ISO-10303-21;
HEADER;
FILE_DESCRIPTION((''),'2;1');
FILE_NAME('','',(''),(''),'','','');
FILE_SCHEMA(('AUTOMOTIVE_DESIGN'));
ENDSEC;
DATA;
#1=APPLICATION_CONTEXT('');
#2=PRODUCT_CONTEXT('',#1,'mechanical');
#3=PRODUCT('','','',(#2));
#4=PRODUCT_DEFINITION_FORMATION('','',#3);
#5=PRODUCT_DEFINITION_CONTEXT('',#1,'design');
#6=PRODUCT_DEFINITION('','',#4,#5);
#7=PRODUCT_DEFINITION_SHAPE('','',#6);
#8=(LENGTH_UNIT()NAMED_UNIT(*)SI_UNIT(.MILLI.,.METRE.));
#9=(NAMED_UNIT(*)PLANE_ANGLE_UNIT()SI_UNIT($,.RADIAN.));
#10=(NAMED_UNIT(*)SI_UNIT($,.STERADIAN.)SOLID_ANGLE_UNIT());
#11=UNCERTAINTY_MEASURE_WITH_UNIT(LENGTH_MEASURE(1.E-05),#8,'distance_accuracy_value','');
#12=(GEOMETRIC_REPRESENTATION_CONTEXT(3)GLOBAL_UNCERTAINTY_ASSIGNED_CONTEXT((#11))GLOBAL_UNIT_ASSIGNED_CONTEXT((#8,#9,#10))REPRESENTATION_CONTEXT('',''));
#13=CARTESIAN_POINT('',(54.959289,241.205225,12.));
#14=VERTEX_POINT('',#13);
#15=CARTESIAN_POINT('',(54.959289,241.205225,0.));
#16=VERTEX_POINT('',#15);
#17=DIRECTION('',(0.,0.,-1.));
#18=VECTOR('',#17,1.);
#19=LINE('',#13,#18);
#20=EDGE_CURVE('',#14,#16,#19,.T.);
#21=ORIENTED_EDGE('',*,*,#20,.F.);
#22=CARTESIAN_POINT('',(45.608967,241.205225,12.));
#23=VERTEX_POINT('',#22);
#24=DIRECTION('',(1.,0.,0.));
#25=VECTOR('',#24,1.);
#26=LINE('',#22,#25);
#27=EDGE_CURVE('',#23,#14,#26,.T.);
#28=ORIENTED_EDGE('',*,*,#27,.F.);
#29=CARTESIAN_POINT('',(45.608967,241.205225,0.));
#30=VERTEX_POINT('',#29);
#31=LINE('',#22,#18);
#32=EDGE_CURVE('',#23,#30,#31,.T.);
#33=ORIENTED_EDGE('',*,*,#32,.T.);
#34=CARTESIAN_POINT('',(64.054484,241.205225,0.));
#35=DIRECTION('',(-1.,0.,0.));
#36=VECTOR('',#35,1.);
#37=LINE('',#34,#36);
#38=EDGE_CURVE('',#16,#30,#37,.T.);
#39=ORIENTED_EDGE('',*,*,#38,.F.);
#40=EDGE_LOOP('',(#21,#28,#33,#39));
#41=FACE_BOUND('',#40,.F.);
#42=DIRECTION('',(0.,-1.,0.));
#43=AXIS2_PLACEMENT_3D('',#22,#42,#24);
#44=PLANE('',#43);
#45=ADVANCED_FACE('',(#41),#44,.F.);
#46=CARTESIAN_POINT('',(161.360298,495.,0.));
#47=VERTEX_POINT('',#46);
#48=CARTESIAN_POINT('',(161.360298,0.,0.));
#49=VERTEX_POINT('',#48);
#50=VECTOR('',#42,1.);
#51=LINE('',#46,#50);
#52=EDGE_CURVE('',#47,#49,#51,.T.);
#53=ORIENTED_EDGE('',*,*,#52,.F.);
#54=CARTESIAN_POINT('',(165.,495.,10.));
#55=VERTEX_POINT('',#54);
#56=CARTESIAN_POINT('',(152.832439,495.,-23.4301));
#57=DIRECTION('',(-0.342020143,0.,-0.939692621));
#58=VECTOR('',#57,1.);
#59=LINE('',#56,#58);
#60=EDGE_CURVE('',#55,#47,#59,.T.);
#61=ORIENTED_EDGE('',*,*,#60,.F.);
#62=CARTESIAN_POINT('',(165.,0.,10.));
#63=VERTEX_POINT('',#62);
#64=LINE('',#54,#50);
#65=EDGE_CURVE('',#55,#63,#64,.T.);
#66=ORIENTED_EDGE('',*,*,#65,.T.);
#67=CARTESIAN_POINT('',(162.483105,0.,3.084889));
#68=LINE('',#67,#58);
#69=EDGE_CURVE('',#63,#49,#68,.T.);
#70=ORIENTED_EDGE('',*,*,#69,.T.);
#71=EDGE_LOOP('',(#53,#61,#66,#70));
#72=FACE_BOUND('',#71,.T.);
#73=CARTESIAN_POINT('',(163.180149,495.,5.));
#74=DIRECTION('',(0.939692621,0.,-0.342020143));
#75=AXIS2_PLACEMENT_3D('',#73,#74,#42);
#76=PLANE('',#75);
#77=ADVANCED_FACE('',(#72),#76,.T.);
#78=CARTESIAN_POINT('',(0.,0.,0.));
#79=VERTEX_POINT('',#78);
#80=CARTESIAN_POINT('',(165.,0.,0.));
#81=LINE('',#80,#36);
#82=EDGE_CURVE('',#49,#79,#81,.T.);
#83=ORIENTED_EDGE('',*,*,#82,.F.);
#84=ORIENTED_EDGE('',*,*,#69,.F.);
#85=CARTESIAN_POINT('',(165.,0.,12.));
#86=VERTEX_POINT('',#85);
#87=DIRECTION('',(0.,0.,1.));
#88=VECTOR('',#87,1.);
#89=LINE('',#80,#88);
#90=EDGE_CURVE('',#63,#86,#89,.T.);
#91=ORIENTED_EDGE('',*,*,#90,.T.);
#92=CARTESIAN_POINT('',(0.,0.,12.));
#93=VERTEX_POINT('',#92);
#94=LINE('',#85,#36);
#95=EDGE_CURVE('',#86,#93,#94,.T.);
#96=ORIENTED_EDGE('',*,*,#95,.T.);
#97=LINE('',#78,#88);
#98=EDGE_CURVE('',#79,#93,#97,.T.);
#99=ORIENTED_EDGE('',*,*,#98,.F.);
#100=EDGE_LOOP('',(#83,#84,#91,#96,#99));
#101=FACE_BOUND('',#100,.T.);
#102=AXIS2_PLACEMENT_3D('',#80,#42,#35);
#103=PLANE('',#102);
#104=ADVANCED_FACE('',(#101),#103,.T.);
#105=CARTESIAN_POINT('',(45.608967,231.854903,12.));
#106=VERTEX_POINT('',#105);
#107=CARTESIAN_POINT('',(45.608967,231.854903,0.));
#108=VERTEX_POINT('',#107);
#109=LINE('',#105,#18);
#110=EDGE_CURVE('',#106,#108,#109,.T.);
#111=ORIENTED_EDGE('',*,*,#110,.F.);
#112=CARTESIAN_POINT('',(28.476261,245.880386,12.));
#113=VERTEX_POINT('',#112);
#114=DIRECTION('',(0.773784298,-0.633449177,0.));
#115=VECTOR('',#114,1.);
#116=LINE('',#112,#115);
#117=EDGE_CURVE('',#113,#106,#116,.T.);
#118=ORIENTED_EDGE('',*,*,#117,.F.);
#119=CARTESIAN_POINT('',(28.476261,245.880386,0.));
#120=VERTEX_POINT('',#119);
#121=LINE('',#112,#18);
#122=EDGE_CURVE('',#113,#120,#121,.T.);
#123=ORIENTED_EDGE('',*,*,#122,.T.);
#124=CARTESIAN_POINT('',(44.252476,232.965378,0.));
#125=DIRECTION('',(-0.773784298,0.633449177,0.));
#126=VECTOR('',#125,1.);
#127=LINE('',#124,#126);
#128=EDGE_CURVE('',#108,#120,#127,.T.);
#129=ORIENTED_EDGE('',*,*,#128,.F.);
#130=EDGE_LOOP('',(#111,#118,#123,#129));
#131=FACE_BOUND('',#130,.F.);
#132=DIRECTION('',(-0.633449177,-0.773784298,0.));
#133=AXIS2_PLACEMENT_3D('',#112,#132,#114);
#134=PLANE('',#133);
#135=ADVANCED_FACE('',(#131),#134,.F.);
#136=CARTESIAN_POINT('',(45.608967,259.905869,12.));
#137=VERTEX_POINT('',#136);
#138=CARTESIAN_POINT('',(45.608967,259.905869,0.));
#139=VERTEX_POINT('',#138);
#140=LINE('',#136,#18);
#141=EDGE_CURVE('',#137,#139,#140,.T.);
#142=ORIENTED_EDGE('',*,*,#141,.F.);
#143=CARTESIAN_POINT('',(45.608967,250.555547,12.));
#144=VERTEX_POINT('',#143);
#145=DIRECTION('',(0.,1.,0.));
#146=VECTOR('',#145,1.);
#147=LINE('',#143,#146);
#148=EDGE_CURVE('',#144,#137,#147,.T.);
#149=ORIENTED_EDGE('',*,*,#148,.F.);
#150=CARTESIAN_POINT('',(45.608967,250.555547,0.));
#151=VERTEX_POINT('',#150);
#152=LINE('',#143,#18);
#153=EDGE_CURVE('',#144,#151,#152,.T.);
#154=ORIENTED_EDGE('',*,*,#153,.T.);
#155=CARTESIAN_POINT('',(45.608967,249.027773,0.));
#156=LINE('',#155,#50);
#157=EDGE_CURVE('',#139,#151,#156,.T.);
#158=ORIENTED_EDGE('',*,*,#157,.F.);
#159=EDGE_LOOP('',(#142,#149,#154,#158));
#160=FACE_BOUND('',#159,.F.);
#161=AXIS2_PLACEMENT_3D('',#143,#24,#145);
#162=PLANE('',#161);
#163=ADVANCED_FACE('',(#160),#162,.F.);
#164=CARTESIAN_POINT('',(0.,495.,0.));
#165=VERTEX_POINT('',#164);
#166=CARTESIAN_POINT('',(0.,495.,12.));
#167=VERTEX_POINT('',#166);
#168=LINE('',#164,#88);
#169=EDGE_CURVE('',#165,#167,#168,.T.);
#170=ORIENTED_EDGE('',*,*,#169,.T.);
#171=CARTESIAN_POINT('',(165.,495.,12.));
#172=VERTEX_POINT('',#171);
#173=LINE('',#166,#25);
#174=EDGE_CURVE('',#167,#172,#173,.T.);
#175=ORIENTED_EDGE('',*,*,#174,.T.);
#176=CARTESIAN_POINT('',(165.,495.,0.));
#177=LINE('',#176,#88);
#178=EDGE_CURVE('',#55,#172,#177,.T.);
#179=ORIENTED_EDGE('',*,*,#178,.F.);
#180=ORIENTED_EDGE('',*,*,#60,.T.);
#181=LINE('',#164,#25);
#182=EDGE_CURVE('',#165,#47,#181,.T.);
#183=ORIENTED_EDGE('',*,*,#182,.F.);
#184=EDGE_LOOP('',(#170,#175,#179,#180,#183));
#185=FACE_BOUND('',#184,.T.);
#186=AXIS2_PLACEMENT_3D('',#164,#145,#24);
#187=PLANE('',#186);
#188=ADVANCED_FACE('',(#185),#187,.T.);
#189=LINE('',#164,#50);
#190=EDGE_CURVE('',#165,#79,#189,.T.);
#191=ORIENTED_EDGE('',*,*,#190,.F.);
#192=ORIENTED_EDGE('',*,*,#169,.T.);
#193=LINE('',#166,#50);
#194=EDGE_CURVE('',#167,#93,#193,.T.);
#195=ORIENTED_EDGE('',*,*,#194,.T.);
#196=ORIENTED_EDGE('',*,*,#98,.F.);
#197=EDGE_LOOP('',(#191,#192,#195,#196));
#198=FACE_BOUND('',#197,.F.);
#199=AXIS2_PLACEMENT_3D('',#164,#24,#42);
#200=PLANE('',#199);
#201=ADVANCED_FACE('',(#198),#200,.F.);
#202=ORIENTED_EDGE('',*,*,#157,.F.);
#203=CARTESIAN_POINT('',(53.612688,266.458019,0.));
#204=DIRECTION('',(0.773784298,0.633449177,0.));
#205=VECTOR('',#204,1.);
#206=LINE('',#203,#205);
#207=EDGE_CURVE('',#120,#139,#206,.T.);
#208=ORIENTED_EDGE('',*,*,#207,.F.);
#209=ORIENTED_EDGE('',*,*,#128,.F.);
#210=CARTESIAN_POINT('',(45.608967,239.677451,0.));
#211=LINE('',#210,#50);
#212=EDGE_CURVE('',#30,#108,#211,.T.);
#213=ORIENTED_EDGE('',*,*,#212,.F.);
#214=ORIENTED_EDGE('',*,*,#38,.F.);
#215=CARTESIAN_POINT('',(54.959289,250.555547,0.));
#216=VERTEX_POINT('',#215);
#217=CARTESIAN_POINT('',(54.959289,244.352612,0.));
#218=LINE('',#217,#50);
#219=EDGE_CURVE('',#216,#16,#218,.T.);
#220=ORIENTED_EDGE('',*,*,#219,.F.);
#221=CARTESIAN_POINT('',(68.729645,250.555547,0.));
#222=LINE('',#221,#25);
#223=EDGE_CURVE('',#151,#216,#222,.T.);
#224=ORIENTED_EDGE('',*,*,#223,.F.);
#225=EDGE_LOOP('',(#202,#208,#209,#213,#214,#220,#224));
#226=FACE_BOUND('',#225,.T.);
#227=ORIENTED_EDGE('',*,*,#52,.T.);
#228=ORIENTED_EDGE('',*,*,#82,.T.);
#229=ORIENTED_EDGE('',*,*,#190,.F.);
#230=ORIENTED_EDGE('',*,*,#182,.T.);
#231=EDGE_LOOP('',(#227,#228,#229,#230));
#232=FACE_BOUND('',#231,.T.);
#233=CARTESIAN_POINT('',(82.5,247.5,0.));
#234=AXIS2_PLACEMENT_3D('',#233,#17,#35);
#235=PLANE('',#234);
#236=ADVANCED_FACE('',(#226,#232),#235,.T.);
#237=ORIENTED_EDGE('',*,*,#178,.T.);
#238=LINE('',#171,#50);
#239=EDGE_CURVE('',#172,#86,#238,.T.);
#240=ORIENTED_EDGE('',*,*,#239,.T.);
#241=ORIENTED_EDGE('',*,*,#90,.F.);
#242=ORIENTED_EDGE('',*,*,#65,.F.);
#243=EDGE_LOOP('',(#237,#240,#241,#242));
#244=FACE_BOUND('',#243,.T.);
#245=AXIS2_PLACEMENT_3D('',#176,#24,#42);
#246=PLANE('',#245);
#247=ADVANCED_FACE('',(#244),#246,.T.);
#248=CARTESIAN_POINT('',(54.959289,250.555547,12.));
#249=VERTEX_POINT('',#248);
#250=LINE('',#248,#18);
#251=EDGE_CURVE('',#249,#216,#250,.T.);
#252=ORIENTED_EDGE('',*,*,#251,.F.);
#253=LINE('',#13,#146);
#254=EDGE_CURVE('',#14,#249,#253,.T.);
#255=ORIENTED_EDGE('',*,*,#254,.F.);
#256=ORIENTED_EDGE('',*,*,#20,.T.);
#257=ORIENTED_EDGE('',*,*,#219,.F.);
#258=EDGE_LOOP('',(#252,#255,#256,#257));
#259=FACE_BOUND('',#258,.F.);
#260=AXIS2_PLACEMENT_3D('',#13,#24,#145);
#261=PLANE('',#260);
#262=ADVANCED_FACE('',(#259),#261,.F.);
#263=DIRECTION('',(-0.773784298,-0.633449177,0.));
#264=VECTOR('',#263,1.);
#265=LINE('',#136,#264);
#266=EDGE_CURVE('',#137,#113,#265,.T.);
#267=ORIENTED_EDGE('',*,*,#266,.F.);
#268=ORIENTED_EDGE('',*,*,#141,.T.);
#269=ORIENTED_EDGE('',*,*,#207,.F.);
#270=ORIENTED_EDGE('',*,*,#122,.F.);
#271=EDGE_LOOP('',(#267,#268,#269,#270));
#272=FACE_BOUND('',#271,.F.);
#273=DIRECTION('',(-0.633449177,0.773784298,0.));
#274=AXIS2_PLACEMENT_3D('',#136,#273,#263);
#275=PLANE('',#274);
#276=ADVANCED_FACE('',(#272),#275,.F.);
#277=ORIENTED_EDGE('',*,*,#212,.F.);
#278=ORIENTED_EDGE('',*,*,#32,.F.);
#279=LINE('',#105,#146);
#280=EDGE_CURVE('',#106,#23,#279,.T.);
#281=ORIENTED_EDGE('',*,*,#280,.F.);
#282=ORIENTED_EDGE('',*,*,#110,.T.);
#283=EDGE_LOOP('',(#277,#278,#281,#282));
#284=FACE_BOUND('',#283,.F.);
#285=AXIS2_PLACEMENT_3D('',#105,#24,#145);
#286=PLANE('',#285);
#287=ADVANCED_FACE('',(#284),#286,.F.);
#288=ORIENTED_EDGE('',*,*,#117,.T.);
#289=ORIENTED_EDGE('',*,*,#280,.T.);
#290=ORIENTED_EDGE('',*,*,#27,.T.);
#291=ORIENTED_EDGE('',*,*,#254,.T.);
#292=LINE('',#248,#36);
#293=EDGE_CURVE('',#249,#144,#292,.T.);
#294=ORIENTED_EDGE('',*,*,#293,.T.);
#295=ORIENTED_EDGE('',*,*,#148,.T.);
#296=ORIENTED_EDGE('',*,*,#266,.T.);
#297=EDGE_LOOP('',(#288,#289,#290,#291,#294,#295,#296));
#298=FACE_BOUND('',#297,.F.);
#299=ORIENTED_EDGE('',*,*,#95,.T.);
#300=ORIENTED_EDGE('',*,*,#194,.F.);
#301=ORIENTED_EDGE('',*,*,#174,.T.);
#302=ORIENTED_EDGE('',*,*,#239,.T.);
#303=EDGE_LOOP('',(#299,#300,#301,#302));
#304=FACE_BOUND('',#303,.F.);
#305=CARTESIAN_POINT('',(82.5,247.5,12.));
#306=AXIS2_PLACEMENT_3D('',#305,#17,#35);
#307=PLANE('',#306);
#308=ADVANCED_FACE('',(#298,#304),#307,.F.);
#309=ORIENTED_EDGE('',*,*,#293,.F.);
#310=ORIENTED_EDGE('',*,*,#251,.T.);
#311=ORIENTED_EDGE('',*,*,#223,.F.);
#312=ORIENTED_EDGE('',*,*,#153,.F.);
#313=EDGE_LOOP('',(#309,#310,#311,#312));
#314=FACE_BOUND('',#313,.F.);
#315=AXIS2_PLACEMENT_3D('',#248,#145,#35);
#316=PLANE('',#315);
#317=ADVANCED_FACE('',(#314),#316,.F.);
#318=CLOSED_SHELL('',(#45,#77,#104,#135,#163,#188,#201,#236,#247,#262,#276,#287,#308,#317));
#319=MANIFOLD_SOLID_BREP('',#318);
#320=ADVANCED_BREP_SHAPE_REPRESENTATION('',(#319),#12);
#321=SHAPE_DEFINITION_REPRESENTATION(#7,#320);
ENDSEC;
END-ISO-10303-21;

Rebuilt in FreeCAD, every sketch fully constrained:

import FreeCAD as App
import Part
import Sketcher


def edges_at(feature, points):
    """Names of the edges that pass closest to the given points."""
    edges = feature.Shape.Edges
    near = lambda p: min(range(len(edges)), key=lambda i: edges[i].distToShape(Part.Vertex(*p))[0])
    return sorted({f"Edge{near(p) + 1}" for p in points})


def add_polygon(sketch, points):
    """Adds a closed chain of lines whose ends are joined by coincident constraints."""
    first, n = sketch.GeometryCount, len(points)
    for a, b in zip(points, points[1:] + points[:1]):
        sketch.addGeometry(Part.LineSegment(App.Vector(*a, 0), App.Vector(*b, 0)), False)
    for i in range(n):
        sketch.addConstraint(Sketcher.Constraint("Coincident", first + i, 2, first + (i + 1) % n, 1))

doc = App.newDocument("Part")
params = doc.addObject("Spreadsheet::Sheet", "Params")
for row, (alias, value) in enumerate([
    ("sketch1_width", "165 mm"),
    ("sketch1_height", "495 mm"),
    ("pad1_length", "12 mm"),
    ("chamfer_size", "10 mm"),
], start=1):
    params.set(f"A{row}", alias)
    params.set(f"B{row}", "=" + value)
    params.setAlias(f"B{row}", alias)

body = doc.addObject("PartDesign::Body", "Body")

sketch1 = body.newObject("Sketcher::SketchObject", "Sketch")
sketch1.AttachmentSupport = (doc.getObject("XY_Plane"), [""])
sketch1.MapMode = "FlatFace"
add_polygon(sketch1, [(165, 495), (0, 495), (0, 0), (165, 0)])
sketch1.addConstraint([
    Sketcher.Constraint("Horizontal", 0),
    Sketcher.Constraint("Vertical", 1),
    Sketcher.Constraint("Horizontal", 2),
    Sketcher.Constraint("Vertical", 3),
    Sketcher.Constraint("Coincident", 1, 2, -1, 1),
    Sketcher.Constraint("DistanceX", 0, 2, 0, 1, 165.0),
    Sketcher.Constraint("DistanceY", 1, 2, 1, 1, 495.0),
])
sketch1.setExpression("Constraints[9]", "Params.sketch1_width")
sketch1.setExpression("Constraints[10]", "Params.sketch1_height")
pad1 = body.newObject("PartDesign::Pad", "Pad")
pad1.Profile = sketch1
pad1.setExpression("Length", "Params.pad1_length")

sketch2 = body.newObject("Sketcher::SketchObject", "Sketch001")
sketch2.AttachmentSupport = (doc.getObject("XY_Plane"), [""])
sketch2.MapMode = "FlatFace"
sketch2.AttachmentOffset = App.Placement(App.Vector(0, 0, 12), App.Rotation())
add_polygon(sketch2, [(46, 260), (28, 246), (46, 232), (46, 241), (55, 241), (55, 251), (46, 251)])
sketch2.addConstraint([
    Sketcher.Constraint("Vertical", 2),
    Sketcher.Constraint("Horizontal", 3),
    Sketcher.Constraint("Vertical", 4),
    Sketcher.Constraint("Horizontal", 5),
    Sketcher.Constraint("Vertical", 6),
    Sketcher.Constraint("Vertical", 2, 2, 5, 2),
    Sketcher.Constraint("Equal", 5, 2),
    Sketcher.Constraint("Equal", 2, 4),
    Sketcher.Constraint("Equal", 4, 6),
    Sketcher.Constraint("Equal", 0, 1),
    Sketcher.Constraint("DistanceX", 3, 1, 3, 2, 9.350322),
    Sketcher.Constraint("Distance", 0, 22.14145),
    Sketcher.Constraint("DistanceX", -1, 1, 0, 2, 28.476261),
    Sketcher.Constraint("DistanceY", -1, 1, 6, 2, 259.905869),
])
pocket1 = body.newObject("PartDesign::Pocket", "Pocket")
pocket1.Profile = sketch2
pocket1.Type = "ThroughAll"
doc.recompute()

chamfer = body.newObject("PartDesign::Chamfer", "Chamfer")
chamfer.Base = (pocket1, edges_at(pocket1, [(165, 247.5, 0)]))
chamfer.ChamferType = "Distance and Angle"
chamfer.setExpression("Size", "Params.chamfer_size")
chamfer.Angle = 20

doc.recompute()
